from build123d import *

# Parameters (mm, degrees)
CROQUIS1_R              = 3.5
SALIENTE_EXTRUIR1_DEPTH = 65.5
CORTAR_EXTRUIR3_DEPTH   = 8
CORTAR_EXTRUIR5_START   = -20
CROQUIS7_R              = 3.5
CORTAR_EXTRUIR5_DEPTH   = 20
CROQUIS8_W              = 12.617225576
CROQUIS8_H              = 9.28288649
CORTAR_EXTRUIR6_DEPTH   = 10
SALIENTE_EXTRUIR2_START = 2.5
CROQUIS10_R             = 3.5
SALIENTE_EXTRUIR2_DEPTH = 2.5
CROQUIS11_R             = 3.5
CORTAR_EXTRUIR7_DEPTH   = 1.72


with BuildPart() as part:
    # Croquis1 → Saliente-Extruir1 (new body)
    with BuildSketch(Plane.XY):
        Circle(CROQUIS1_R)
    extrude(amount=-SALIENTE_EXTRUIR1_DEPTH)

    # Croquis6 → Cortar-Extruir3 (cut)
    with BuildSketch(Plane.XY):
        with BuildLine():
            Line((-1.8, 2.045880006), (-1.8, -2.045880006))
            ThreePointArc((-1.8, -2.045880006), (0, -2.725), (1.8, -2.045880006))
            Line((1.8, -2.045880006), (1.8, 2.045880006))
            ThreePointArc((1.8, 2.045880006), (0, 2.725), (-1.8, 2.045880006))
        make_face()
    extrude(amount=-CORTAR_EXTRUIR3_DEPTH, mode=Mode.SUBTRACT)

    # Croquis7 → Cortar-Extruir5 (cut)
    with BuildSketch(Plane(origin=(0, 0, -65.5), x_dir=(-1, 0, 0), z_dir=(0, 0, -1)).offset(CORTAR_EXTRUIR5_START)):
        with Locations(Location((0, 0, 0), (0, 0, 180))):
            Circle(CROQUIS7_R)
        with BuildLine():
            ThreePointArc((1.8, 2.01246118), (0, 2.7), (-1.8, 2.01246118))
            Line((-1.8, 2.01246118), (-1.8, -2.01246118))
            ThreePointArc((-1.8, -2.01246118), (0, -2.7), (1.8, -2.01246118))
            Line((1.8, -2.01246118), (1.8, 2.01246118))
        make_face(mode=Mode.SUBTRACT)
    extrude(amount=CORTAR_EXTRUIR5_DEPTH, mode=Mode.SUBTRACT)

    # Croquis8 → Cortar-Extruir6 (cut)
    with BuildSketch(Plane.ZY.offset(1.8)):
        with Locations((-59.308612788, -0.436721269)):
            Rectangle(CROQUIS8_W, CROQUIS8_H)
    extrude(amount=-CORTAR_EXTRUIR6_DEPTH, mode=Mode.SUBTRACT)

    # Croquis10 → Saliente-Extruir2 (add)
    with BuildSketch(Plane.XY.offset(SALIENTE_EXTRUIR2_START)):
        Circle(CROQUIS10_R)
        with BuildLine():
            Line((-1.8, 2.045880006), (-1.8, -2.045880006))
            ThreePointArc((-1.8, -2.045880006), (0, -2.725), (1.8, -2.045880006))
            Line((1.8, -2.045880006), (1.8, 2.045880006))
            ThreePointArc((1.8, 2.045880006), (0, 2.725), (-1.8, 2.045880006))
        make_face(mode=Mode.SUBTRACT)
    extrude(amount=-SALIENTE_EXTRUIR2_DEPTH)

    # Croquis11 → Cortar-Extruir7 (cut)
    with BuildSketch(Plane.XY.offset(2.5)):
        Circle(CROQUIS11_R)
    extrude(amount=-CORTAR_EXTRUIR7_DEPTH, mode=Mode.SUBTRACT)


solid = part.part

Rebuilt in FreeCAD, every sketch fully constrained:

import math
import FreeCAD as App
import Part
import Sketcher
from FreeCAD import Vector

doc = App.newDocument("Part")
body = doc.addObject("PartDesign::Body", "Body")

# Sketch on XY plane
sketch1 = body.newObject("Sketcher::SketchObject", "Sketch")
sketch1.AttachmentSupport = (doc.getObject("XY_Plane"), [""])
sketch1.MapMode = "FlatFace"
sketch1.addGeometry(Part.Circle(Vector(0, 0, 0), Vector(0, 0, 1), 3.5), False)
sketch1.addConstraint(Sketcher.Constraint("Coincident", 0, 3, -1, 1))
sketch1.addConstraint(Sketcher.Constraint("Diameter", 0, 7.0))
pad1 = body.newObject("PartDesign::Pad", "Pad")
pad1.Profile = sketch1
pad1.Length = 65.5
pad1.Reversed = True

# Sketch on XY plane
sketch2 = body.newObject("Sketcher::SketchObject", "Sketch001")
sketch2.AttachmentSupport = (doc.getObject("XY_Plane"), [""])
sketch2.MapMode = "FlatFace"
sketch2.addGeometry(Part.LineSegment(Vector(-1.8, 2, 0), Vector(-1.8, -2, 0)), False)
sketch2.addGeometry(Part.ArcOfCircle(Part.Circle(Vector(0, 0, 0), Vector(0, 0, 1), 2.7), math.radians(-131), math.radians(-49)), False)
sketch2.addGeometry(Part.LineSegment(Vector(1.8, -2, 0), Vector(1.8, 2, 0)), False)
sketch2.addGeometry(Part.ArcOfCircle(Part.Circle(Vector(0, 0, 0), Vector(0, 0, 1), 2.7), math.radians(49), math.radians(131)), False)
sketch2.addConstraint(Sketcher.Constraint("Coincident", 0, 2, 1, 1))
sketch2.addConstraint(Sketcher.Constraint("Coincident", 1, 2, 2, 1))
sketch2.addConstraint(Sketcher.Constraint("Coincident", 2, 2, 3, 1))
sketch2.addConstraint(Sketcher.Constraint("Coincident", 3, 2, 0, 1))
sketch2.addConstraint(Sketcher.Constraint("Vertical", 0))
sketch2.addConstraint(Sketcher.Constraint("Vertical", 2))
sketch2.addConstraint(Sketcher.Constraint("Coincident", 1, 3, -1, 1))
sketch2.addConstraint(Sketcher.Constraint("Coincident", 3, 3, -1, 1))
sketch2.addConstraint(Sketcher.Constraint("Equal", 1, 3))
sketch2.addConstraint(Sketcher.Constraint("Horizontal", 0, 2, 1, 2))
sketch2.addConstraint(Sketcher.Constraint("Radius", 1, 2.725))
sketch2.addConstraint(Sketcher.Constraint("DistanceX", 0, 2, -1, 1, 1.8))
pocket1 = body.newObject("PartDesign::Pocket", "Pocket")
pocket1.Profile = sketch2
pocket1.Length = 8

# Sketch on XY plane
sketch3 = body.newObject("Sketcher::SketchObject", "Sketch002")
sketch3.AttachmentSupport = (doc.getObject("XY_Plane"), [""])
sketch3.MapMode = "FlatFace"
sketch3.AttachmentOffset = App.Placement(Vector(0, 0, -45.5), App.Rotation())
sketch3.addGeometry(Part.Circle(Vector(0, 0, 0), Vector(0, 0, 1), 3.5), False)
sketch3.addGeometry(Part.ArcOfCircle(Part.Circle(Vector(0, 0, 0), Vector(0, 0, 1), 2.7), math.radians(48), math.radians(132)), False)
sketch3.addGeometry(Part.LineSegment(Vector(-1.8, 2, 0), Vector(-1.8, -2, 0)), False)
sketch3.addGeometry(Part.ArcOfCircle(Part.Circle(Vector(0, 0, 0), Vector(0, 0, 1), 2.7), math.radians(-132), math.radians(-48)), False)
sketch3.addGeometry(Part.LineSegment(Vector(1.8, -2, 0), Vector(1.8, 2, 0)), False)
sketch3.addConstraint(Sketcher.Constraint("Coincident", 1, 2, 2, 1))
sketch3.addConstraint(Sketcher.Constraint("Coincident", 2, 2, 3, 1))
sketch3.addConstraint(Sketcher.Constraint("Coincident", 3, 2, 4, 1))
sketch3.addConstraint(Sketcher.Constraint("Coincident", 4, 2, 1, 1))
sketch3.addConstraint(Sketcher.Constraint("Vertical", 2))
sketch3.addConstraint(Sketcher.Constraint("Vertical", 4))
sketch3.addConstraint(Sketcher.Constraint("Coincident", 0, 3, -1, 1))
sketch3.addConstraint(Sketcher.Constraint("Coincident", 1, 3, -1, 1))
sketch3.addConstraint(Sketcher.Constraint("Coincident", 3, 3, -1, 1))
sketch3.addConstraint(Sketcher.Constraint("Equal", 1, 3))
sketch3.addConstraint(Sketcher.Constraint("Horizontal", 2, 2, 3, 2))
sketch3.addConstraint(Sketcher.Constraint("Diameter", 0, 7.0))
sketch3.addConstraint(Sketcher.Constraint("Radius", 1, 2.7))
sketch3.addConstraint(Sketcher.Constraint("DistanceX", 1, 2, -1, 1, 1.8))
pocket2 = body.newObject("PartDesign::Pocket", "Pocket001")
pocket2.Profile = sketch3
pocket2.Length = 20

# Sketch on YZ plane
sketch4 = body.newObject("Sketcher::SketchObject", "Sketch003")
sketch4.AttachmentSupport = (doc.getObject("YZ_Plane"), [""])
sketch4.MapMode = "FlatFace"
sketch4.AttachmentOffset = App.Placement(Vector(0, 0, -1.8), App.Rotation())
sketch4.addGeometry(Part.LineSegment(Vector(4, -66, 0), Vector(-5, -66, 0)), False)
sketch4.addGeometry(Part.LineSegment(Vector(-5, -66, 0), Vector(-5, -53, 0)), False)
sketch4.addGeometry(Part.LineSegment(Vector(-5, -53, 0), Vector(4, -53, 0)), False)
sketch4.addGeometry(Part.LineSegment(Vector(4, -53, 0), Vector(4, -66, 0)), False)
sketch4.addConstraint(Sketcher.Constraint("Coincident", 0, 2, 1, 1))
sketch4.addConstraint(Sketcher.Constraint("Coincident", 1, 2, 2, 1))
sketch4.addConstraint(Sketcher.Constraint("Coincident", 2, 2, 3, 1))
sketch4.addConstraint(Sketcher.Constraint("Coincident", 3, 2, 0, 1))
sketch4.addConstraint(Sketcher.Constraint("Horizontal", 0))
sketch4.addConstraint(Sketcher.Constraint("Vertical", 1))
sketch4.addConstraint(Sketcher.Constraint("Horizontal", 2))
sketch4.addConstraint(Sketcher.Constraint("Vertical", 3))
sketch4.addConstraint(Sketcher.Constraint("DistanceY", 1, 2, -1, 1, 53.0))
sketch4.addConstraint(Sketcher.Constraint("DistanceX", 0, 2, 0, 1, 9.282886))
sketch4.addConstraint(Sketcher.Constraint("DistanceY", 1, 1, 1, 2, 12.617226))
sketch4.addConstraint(Sketcher.Constraint("DistanceX", -1, 1, 2, 2, 4.204722))
pocket3 = body.newObject("PartDesign::Pocket", "Pocket002")
pocket3.Profile = sketch4
pocket3.Length = 10
pocket3.Reversed = True

# Sketch on XY plane
sketch5 = body.newObject("Sketcher::SketchObject", "Sketch004")
sketch5.AttachmentSupport = (doc.getObject("XY_Plane"), [""])
sketch5.MapMode = "FlatFace"
sketch5.AttachmentOffset = App.Placement(Vector(0, 0, 2.5), App.Rotation())
sketch5.addGeometry(Part.Circle(Vector(0, 0, 0), Vector(0, 0, 1), 3.5), False)
sketch5.addGeometry(Part.LineSegment(Vector(-1.8, -2, 0), Vector(-1.8, 2, 0)), False)
sketch5.addGeometry(Part.ArcOfCircle(Part.Circle(Vector(0, 0, 0), Vector(0, 0, 1), 2.7), math.radians(49), math.radians(131)), False)
sketch5.addGeometry(Part.LineSegment(Vector(1.8, 2, 0), Vector(1.8, -2, 0)), False)
sketch5.addGeometry(Part.ArcOfCircle(Part.Circle(Vector(0, 0, 0), Vector(0, 0, 1), 2.7), math.radians(-131), math.radians(-49)), False)
sketch5.addConstraint(Sketcher.Constraint("Coincident", 1, 2, 2, 2))
sketch5.addConstraint(Sketcher.Constraint("Coincident", 2, 1, 3, 1))
sketch5.addConstraint(Sketcher.Constraint("Coincident", 3, 2, 4, 2))
sketch5.addConstraint(Sketcher.Constraint("Coincident", 4, 1, 1, 1))
sketch5.addConstraint(Sketcher.Constraint("Vertical", 1))
sketch5.addConstraint(Sketcher.Constraint("Vertical", 3))
sketch5.addConstraint(Sketcher.Constraint("Coincident", 0, 3, -1, 1))
sketch5.addConstraint(Sketcher.Constraint("Coincident", 2, 3, -1, 1))
sketch5.addConstraint(Sketcher.Constraint("Coincident", 4, 3, -1, 1))
sketch5.addConstraint(Sketcher.Constraint("Equal", 2, 4))
sketch5.addConstraint(Sketcher.Constraint("Horizontal", 1, 2, 2, 1))
sketch5.addConstraint(Sketcher.Constraint("Diameter", 0, 7.0))
sketch5.addConstraint(Sketcher.Constraint("Radius", 2, 2.725))
sketch5.addConstraint(Sketcher.Constraint("DistanceX", 1, 2, -1, 1, 1.8))
pad2 = body.newObject("PartDesign::Pad", "Pad001")
pad2.Profile = sketch5
pad2.Length = 2.5
pad2.Reversed = True

# Sketch on XY plane
sketch6 = body.newObject("Sketcher::SketchObject", "Sketch005")
sketch6.AttachmentSupport = (doc.getObject("XY_Plane"), [""])
sketch6.MapMode = "FlatFace"
sketch6.AttachmentOffset = App.Placement(Vector(0, 0, 2.5), App.Rotation())
sketch6.addGeometry(Part.Circle(Vector(0, 0, 0), Vector(0, 0, 1), 3.5), False)
sketch6.addConstraint(Sketcher.Constraint("Coincident", 0, 3, -1, 1))
sketch6.addConstraint(Sketcher.Constraint("Diameter", 0, 7.0))
pocket4 = body.newObject("PartDesign::Pocket", "Pocket003")
pocket4.Profile = sketch6
pocket4.Length = 1.72

doc.recompute()
